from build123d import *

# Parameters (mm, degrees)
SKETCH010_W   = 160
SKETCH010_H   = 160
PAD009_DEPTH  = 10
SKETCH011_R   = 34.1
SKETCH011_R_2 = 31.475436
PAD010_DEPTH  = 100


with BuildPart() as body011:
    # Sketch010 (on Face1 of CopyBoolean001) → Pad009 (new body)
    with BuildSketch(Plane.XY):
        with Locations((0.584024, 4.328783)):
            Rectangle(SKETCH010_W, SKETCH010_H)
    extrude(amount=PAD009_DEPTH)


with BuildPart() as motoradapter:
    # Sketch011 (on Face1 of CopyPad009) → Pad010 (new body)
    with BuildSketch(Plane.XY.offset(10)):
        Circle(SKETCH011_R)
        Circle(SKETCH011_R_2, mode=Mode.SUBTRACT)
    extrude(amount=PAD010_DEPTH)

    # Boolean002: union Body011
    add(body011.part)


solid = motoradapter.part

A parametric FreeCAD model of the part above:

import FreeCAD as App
import Part
import Sketcher

V = App.Vector


def add_polygon(sketch, points):
    """Adds a closed chain of lines whose ends are joined by coincident constraints."""
    first, n = sketch.GeometryCount, len(points)
    for a, b in zip(points, points[1:] + points[:1]):
        sketch.addGeometry(Part.LineSegment(App.Vector(*a, 0), App.Vector(*b, 0)), False)
    for i in range(n):
        sketch.addConstraint(Sketcher.Constraint("Coincident", first + i, 2, first + (i + 1) % n, 1))

doc = App.newDocument("Part")
params = doc.addObject("Spreadsheet::Sheet", "Params")
for row, (alias, value) in enumerate([
    ("sketch1_width", "160 mm"),
    ("pad1_length", "10 mm"),
    ("sketch2_diameter", "68.2 mm"),
    ("pad2_length", "100 mm"),
], start=1):
    params.set(f"A{row}", alias)
    params.set(f"B{row}", "=" + value)
    params.setAlias(f"B{row}", alias)

body = doc.addObject("PartDesign::Body", "Body")

# Sketch on XY plane
sketch1 = body.newObject("Sketcher::SketchObject", "Sketch")
sketch1.AttachmentSupport = (doc.getObject("XY_Plane"), [""])
sketch1.MapMode = "FlatFace"
add_polygon(sketch1, [(-79.415976, 84.328783), (-79.415976, -75.671217), (80.584024, -75.671217), (80.584024, 84.328783)])  # lines 0-3
sketch1.addConstraint([
    Sketcher.Constraint("Vertical", 0),
    Sketcher.Constraint("Horizontal", 1),
    Sketcher.Constraint("Vertical", 2),
    Sketcher.Constraint("Horizontal", 3),
    Sketcher.Constraint("Equal", 3, 0),
    Sketcher.Constraint("DistanceX", 1, 1, 1, 2, 160.0),
    Sketcher.Constraint("DistanceX", 0, 2, -1, 1, 79.415976),
    Sketcher.Constraint("DistanceY", 0, 2, -1, 1, 75.671217),
])
sketch1.setExpression("Constraints[9]", "Params.sketch1_width")
pad1 = body.newObject("PartDesign::Pad", "Pad")
pad1.Profile = sketch1
pad1.setExpression("Length", "Params.pad1_length")
body2 = doc.addObject("PartDesign::Body", "Body001")

# Sketch on XY plane
sketch2 = body2.newObject("Sketcher::SketchObject", "Sketch001")
sketch2.AttachmentSupport = (doc.getObject("XY_Plane001"), [""])
sketch2.MapMode = "FlatFace"
sketch2.AttachmentOffset = App.Placement(V(0, 0, 10), App.Rotation())
sketch2.addGeometry([
    Part.Circle(V(0, 0, 0), V(0, 0, 1), 34.1),
    Part.Circle(V(0, 0, 0), V(0, 0, 1), 31.475436),
], False)
sketch2.addConstraint([
    Sketcher.Constraint("Coincident", 0, 3, -1, 1),
    Sketcher.Constraint("Coincident", 1, 3, -1, 1),
    Sketcher.Constraint("Diameter", 0, 68.2),
    Sketcher.Constraint("Diameter", 1, 62.950872),
])
sketch2.setExpression("Constraints[2]", "Params.sketch2_diameter")
pad2 = body2.newObject("PartDesign::Pad", "Pad001")
pad2.Profile = sketch2
pad2.setExpression("Length", "Params.pad2_length")
doc.recompute()

boolean = body2.newObject("PartDesign::Boolean", "Boolean")
boolean.Type = "Fuse"
boolean.addObjects([body])

doc.recompute()
